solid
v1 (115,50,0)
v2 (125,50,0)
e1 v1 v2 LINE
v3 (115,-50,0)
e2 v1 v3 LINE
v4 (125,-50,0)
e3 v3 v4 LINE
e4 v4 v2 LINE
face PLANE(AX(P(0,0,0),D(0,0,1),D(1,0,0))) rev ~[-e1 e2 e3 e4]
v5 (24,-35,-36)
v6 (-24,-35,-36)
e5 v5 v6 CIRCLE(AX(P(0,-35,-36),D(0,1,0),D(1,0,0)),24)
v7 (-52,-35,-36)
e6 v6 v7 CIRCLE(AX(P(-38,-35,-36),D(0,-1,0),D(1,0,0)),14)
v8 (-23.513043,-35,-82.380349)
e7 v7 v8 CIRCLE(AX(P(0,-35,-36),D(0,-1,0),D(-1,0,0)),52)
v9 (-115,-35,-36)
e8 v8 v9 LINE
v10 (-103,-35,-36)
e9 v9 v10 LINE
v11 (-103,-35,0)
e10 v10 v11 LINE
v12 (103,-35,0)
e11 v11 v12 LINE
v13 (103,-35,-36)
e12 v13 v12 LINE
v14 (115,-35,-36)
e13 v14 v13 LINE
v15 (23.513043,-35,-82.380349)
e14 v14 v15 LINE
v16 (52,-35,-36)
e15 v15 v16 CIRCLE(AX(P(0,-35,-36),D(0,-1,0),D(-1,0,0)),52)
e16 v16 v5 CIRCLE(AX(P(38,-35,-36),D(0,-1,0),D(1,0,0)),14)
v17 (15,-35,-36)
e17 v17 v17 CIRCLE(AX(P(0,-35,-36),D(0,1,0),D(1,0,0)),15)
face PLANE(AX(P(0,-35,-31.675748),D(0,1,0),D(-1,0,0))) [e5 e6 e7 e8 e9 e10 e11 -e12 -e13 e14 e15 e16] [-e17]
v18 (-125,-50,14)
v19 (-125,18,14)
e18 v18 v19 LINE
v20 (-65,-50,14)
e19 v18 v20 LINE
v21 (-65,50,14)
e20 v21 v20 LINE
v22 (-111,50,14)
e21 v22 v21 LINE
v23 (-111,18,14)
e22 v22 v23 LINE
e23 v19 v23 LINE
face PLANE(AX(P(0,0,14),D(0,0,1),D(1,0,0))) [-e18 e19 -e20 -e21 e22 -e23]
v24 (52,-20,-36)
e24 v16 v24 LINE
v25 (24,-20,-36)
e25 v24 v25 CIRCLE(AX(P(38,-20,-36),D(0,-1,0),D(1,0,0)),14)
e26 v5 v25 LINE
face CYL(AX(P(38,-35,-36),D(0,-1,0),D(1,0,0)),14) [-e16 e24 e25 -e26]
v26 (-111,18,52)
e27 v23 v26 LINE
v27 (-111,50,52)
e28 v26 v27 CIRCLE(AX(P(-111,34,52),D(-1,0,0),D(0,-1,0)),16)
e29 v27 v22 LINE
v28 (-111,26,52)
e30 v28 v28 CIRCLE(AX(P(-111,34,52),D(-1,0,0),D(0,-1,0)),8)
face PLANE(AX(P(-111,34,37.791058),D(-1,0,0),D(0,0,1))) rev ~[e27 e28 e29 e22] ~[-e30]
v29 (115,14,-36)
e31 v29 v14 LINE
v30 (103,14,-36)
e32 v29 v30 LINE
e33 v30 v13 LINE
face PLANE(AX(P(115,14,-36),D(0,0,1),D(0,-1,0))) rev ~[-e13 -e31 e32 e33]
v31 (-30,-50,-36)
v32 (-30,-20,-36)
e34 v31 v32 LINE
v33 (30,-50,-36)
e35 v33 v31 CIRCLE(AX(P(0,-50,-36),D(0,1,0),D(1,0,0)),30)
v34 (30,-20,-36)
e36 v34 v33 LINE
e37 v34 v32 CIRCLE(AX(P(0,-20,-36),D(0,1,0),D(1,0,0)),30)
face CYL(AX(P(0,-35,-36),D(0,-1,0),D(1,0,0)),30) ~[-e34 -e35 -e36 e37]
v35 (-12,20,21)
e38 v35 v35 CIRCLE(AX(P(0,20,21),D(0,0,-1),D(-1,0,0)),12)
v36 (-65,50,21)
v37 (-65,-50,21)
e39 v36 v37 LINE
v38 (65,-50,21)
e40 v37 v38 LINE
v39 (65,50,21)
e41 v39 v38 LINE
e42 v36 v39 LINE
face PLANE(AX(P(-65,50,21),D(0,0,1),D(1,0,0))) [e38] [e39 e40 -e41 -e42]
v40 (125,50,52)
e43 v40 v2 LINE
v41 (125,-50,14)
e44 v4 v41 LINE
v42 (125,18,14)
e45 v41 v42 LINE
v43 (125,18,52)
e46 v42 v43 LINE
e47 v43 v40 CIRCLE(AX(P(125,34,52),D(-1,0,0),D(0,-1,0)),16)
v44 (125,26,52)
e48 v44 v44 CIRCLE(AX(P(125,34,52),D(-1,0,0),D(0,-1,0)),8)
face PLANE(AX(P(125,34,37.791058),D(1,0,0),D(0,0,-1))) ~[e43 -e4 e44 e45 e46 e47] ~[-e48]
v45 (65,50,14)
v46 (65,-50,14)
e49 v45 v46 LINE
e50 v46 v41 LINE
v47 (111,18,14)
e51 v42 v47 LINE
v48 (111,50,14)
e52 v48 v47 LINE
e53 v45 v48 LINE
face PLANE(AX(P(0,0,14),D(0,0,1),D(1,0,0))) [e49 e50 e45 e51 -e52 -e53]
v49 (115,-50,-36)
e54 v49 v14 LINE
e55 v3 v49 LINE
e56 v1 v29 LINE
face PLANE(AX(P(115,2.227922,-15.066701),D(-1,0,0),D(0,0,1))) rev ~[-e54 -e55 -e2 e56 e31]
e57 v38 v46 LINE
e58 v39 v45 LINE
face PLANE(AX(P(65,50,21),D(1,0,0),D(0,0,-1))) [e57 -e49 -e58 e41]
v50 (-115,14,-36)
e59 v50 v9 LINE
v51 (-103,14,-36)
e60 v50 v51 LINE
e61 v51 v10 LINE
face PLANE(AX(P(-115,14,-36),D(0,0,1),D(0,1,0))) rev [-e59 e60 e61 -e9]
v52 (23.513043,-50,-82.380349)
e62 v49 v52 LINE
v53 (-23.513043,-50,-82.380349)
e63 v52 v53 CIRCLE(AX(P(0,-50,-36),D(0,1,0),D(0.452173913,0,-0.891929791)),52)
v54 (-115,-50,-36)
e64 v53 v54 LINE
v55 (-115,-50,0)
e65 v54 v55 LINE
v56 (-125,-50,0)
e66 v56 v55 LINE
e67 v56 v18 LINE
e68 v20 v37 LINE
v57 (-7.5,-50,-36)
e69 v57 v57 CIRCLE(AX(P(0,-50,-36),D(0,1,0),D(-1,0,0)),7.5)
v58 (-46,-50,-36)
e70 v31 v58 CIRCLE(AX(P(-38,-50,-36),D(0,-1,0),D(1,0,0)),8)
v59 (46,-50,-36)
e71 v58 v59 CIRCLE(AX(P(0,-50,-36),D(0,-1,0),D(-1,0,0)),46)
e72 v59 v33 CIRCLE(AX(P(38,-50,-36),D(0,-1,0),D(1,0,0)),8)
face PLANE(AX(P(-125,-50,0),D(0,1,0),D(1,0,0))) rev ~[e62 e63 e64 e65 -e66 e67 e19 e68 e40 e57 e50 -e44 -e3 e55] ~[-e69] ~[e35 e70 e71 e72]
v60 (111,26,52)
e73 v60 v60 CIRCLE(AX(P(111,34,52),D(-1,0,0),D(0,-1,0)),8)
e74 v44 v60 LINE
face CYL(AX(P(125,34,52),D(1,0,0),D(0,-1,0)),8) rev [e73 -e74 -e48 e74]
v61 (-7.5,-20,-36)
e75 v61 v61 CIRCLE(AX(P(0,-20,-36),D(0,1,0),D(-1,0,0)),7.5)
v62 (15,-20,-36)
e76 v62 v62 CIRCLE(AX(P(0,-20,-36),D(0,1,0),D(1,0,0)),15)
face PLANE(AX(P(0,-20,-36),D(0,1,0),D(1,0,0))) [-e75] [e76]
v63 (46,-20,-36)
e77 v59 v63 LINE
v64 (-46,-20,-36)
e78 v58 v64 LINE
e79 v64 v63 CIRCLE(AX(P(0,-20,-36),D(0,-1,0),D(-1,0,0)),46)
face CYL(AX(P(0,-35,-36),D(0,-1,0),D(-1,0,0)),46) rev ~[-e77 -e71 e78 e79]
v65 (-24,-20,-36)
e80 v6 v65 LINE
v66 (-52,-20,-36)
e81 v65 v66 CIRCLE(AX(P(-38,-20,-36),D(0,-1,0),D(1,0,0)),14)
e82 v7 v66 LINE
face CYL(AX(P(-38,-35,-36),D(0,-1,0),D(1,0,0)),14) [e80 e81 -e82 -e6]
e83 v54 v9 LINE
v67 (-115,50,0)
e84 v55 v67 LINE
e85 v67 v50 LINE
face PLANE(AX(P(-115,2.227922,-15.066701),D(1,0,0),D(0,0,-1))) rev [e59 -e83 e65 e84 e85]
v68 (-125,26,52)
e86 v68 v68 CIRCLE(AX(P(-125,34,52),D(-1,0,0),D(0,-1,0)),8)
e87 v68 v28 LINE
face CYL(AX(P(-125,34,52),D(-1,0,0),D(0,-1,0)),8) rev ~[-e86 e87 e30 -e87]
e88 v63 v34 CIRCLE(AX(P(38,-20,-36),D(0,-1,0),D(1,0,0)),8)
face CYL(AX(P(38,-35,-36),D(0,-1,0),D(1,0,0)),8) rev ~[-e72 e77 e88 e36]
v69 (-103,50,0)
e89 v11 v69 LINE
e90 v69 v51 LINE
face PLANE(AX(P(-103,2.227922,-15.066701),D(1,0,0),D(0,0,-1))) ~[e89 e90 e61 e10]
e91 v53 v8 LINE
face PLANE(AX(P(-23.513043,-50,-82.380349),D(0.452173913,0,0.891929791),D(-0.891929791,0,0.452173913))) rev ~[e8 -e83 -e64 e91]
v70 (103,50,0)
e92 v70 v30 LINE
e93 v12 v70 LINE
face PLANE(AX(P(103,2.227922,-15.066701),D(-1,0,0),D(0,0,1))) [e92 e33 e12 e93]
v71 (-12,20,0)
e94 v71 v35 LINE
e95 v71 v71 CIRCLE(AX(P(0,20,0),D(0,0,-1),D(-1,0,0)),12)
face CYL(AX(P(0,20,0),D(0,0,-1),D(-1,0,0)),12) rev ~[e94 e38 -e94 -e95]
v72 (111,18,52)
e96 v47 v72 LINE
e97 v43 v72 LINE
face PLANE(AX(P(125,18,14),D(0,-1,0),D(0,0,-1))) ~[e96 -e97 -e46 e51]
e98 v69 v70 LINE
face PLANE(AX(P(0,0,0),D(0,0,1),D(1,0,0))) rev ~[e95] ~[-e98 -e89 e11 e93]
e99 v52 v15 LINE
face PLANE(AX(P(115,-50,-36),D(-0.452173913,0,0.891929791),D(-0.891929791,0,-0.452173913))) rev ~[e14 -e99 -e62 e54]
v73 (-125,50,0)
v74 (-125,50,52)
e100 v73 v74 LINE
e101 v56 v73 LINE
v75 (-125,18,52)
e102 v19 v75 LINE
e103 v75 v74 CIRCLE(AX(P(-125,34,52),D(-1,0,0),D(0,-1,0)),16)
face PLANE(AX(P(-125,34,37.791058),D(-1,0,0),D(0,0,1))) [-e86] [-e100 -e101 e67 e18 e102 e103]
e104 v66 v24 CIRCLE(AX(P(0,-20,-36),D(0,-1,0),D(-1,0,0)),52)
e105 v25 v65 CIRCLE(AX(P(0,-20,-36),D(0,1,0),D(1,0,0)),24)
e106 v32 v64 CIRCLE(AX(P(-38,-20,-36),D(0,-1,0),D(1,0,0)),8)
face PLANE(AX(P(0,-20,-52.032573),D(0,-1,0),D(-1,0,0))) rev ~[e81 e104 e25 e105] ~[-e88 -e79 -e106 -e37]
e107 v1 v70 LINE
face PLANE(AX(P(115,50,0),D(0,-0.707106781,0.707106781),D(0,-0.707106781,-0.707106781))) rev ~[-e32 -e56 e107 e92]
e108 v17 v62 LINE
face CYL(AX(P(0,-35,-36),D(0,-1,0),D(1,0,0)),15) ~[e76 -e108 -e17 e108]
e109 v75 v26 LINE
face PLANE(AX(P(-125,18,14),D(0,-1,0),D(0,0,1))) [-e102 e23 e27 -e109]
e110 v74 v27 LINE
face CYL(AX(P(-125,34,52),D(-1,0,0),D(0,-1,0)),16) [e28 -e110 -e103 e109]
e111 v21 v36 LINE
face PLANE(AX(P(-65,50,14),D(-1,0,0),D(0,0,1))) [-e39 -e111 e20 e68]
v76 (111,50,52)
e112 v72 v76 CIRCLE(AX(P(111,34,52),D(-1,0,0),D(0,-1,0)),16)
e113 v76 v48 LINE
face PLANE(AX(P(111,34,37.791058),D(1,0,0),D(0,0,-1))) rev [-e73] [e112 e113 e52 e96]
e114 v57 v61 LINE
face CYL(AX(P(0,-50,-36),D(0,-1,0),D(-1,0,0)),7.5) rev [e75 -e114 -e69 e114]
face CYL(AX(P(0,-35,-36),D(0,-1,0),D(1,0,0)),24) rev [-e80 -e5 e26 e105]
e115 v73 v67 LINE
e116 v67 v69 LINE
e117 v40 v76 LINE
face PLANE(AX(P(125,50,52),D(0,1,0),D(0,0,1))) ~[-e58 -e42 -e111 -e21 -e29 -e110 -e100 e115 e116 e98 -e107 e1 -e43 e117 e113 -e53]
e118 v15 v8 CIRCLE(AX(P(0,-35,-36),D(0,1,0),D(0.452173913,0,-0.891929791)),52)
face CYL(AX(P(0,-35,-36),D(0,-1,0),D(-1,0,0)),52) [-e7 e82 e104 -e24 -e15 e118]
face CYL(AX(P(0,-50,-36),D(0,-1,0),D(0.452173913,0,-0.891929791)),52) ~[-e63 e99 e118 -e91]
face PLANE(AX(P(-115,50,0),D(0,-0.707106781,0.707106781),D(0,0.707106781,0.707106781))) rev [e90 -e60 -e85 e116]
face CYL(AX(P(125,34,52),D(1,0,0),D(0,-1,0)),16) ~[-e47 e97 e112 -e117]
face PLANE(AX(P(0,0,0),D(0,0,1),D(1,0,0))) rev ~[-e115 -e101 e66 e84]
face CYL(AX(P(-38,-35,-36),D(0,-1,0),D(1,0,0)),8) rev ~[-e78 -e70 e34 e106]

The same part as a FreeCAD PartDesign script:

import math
import FreeCAD as App
import Part
import Sketcher
Q = App.Units.Quantity


def add_polygon(sketch, points):
    """Adds a closed chain of lines whose ends are joined by coincident constraints."""
    first, n = sketch.GeometryCount, len(points)
    for a, b in zip(points, points[1:] + points[:1]):
        sketch.addGeometry(Part.LineSegment(App.Vector(*a, 0), App.Vector(*b, 0)), False)
    for i in range(n):
        sketch.addConstraint(Sketcher.Constraint("Coincident", first + i, 2, first + (i + 1) % n, 1))

doc = App.newDocument("Part")
body = doc.addObject("PartDesign::Body", "Body")

sketch1 = body.newObject("Sketcher::SketchObject", "Sketch")
sketch1.AttachmentSupport = (doc.getObject("XY_Plane"), [""])
sketch1.MapMode = "FlatFace"
add_polygon(sketch1, [(-125, 50), (-125, -50), (125, -50), (125, 50)])
sketch1.addConstraint([
    Sketcher.Constraint("Vertical", 0),
    Sketcher.Constraint("Horizontal", 1),
    Sketcher.Constraint("Vertical", 2),
    Sketcher.Constraint("Horizontal", 3),
    Sketcher.Constraint("Symmetric", 0, 2, 2, 2, -1, 1),
    Sketcher.Constraint("DistanceX", 1, 1, 1, 2, Q("250 mm")),
    Sketcher.Constraint("DistanceY", 0, 2, 0, 1, Q("100 mm")),
])
pad1 = body.newObject("PartDesign::Pad", "Pad")
pad1.Profile = sketch1
pad1.Length = 14

sketch2 = body.newObject("Sketcher::SketchObject", "Sketch001")
sketch2.AttachmentSupport = (doc.getObject("XZ_Plane"), [""])
sketch2.MapMode = "FlatFace"
sketch2.AttachmentOffset = App.Placement(App.Vector(0, 0, -50), App.Rotation())
add_polygon(sketch2, [(-65, 14), (-65, 21), (65, 21), (65, 14)])
sketch2.addConstraint([
    Sketcher.Constraint("Vertical", 0),
    Sketcher.Constraint("Horizontal", 1),
    Sketcher.Constraint("Vertical", 2),
    Sketcher.Constraint("Horizontal", 3),
    Sketcher.Constraint("DistanceX", 1, 1, 1, 2, Q("130 mm")),
    Sketcher.Constraint("DistanceY", 0, 1, 0, 2, Q("7 mm")),
    Sketcher.Constraint("DistanceX", 0, 2, -1, 1, Q("65 mm")),
    Sketcher.Constraint("DistanceY", -1, 1, 0, 2, Q("21 mm")),
])
pad2 = body.newObject("PartDesign::Pad", "Pad001")
pad2.Profile = sketch2
pad2.Length = 100

sketch3 = body.newObject("Sketcher::SketchObject", "Sketch002")
sketch3.AttachmentSupport = (doc.getObject("YZ_Plane"), [""])
sketch3.MapMode = "FlatFace"
sketch3.AttachmentOffset = App.Placement(App.Vector(0, 0, -125), App.Rotation())
sketch3.addGeometry([
    Part.LineSegment(App.Vector(50, 14, 0), App.Vector(18, 14, 0)),
    Part.LineSegment(App.Vector(18, 14, 0), App.Vector(18, 52, 0)),
    Part.ArcOfCircle(Part.Circle(App.Vector(34, 52, 0), App.Vector(0, 0, 1), 16), math.radians(0), math.radians(180)),
    Part.LineSegment(App.Vector(50, 52, 0), App.Vector(50, 14, 0)),
    Part.Circle(App.Vector(34, 52, 0), App.Vector(0, 0, 1), 8),
], False)
sketch3.addConstraint([
    Sketcher.Constraint("Coincident", 0, 2, 1, 1),
    Sketcher.Constraint("Tangent", 1, 2, 2, 2),
    Sketcher.Constraint("Tangent", 2, 1, 3, 1),
    Sketcher.Constraint("Coincident", 3, 2, 0, 1),
    Sketcher.Constraint("Horizontal", 0),
    Sketcher.Constraint("Vertical", 1),
    Sketcher.Constraint("Vertical", 3),
    Sketcher.Constraint("Coincident", 4, 3, 2, 3),
    Sketcher.Constraint("Diameter", 4, Q("16 mm")),
    Sketcher.Constraint("Radius", 2, Q("16 mm")),
    Sketcher.Constraint("DistanceY", 1, 1, 1, 2, Q("38 mm")),
    Sketcher.Constraint("DistanceX", -1, 1, 2, 3, Q("34 mm")),
    Sketcher.Constraint("DistanceY", -1, 1, 2, 3, Q("52 mm")),
])
pad3 = body.newObject("PartDesign::Pad", "Pad002")
pad3.Profile = sketch3
pad3.Length = 14
doc.recompute()

mirrored = body.newObject("PartDesign::Mirrored", "Mirrored")
mirrored.Originals = [pad3]
mirrored.MirrorPlane = (doc.getObject("YZ_Plane"), [""])
body.Tip = mirrored

sketch4 = body.newObject("Sketcher::SketchObject", "Sketch003")
sketch4.AttachmentSupport = (doc.getObject("XY_Plane"), [""])
sketch4.MapMode = "FlatFace"
sketch4.addGeometry(Part.Circle(App.Vector(0, 20, 0), App.Vector(0, 0, 1), 12), False)
sketch4.addConstraint([
    Sketcher.Constraint("PointOnObject", 0, 3, -2),
    Sketcher.Constraint("Diameter", 0, Q("24 mm")),
    Sketcher.Constraint("DistanceY", -1, 1, 0, 3, Q("20 mm")),
])
pocket1 = body.newObject("PartDesign::Pocket", "Pocket")
pocket1.Profile = sketch4
pocket1.Length = 25
pocket1.Reversed = True
body2 = doc.addObject("PartDesign::Body", "Body001")

sketch5 = body2.newObject("Sketcher::SketchObject", "Sketch004")
sketch5.AttachmentSupport = (doc.getObject("XZ_Plane001"), [""])
sketch5.MapMode = "FlatFace"
sketch5.AttachmentOffset = App.Placement(App.Vector(0, 0, 50), App.Rotation())
sketch5.addGeometry([
    Part.LineSegment(App.Vector(115, -36, 0), App.Vector(115, 0, 0)),
    Part.LineSegment(App.Vector(115, 0, 0), App.Vector(-115, 0, 0)),
    Part.LineSegment(App.Vector(-115, 0, 0), App.Vector(-115, -36, 0)),
    Part.LineSegment(App.Vector(-115, -36, 0), App.Vector(-24, -82, 0)),
    Part.ArcOfCircle(Part.Circle(App.Vector(0, -36, 0), App.Vector(0, 0, 1), 52), math.radians(-117), math.radians(-63)),
    Part.LineSegment(App.Vector(24, -82, 0), App.Vector(115, -36, 0)),
], False)
sketch5.addConstraint([
    Sketcher.Constraint("Coincident", 0, 2, 1, 1),
    Sketcher.Constraint("Coincident", 1, 2, 2, 1),
    Sketcher.Constraint("Coincident", 2, 2, 3, 1),
    Sketcher.Constraint("Tangent", 3, 2, 4, 1),
    Sketcher.Constraint("Tangent", 4, 2, 5, 1),
    Sketcher.Constraint("Coincident", 5, 2, 0, 1),
    Sketcher.Constraint("Vertical", 0),
    Sketcher.Constraint("Horizontal", 1),
    Sketcher.Constraint("Vertical", 2),
    Sketcher.Constraint("Symmetric", 0, 2, 1, 2, -1, 1),
    Sketcher.Constraint("Symmetric", 3, 2, 4, 2, -2),
    Sketcher.Constraint("Horizontal", 4, 3, 2, 2),
    Sketcher.Constraint("Radius", 4, Q("52 mm")),
    Sketcher.Constraint("DistanceX", 1, 2, 1, 1, Q("230 mm")),
    Sketcher.Constraint("DistanceY", 0, 1, 0, 2, Q("36 mm")),
])
pad4 = body2.newObject("PartDesign::Pad", "Pad003")
pad4.Profile = sketch5
pad4.Length = 15
pad4.Reversed = True
doc.recompute()

boolean = body.newObject("PartDesign::Boolean", "Boolean")
boolean.Type = "Fuse"
boolean.addObjects([body2])

sketch6 = body.newObject("Sketcher::SketchObject", "Sketch005")
sketch6.AttachmentSupport = (doc.getObject("YZ_Plane"), [""])
sketch6.MapMode = "FlatFace"
sketch6.AttachmentOffset = App.Placement(App.Vector(0, 0, 115), App.Rotation())
add_polygon(sketch6, [(50, 0), (-35, 0), (-35, -36), (14, -36)])
sketch6.addConstraint([
    Sketcher.Constraint("Horizontal", 0),
    Sketcher.Constraint("Vertical", 1),
    Sketcher.Constraint("Horizontal", 2),
    Sketcher.Constraint("PointOnObject", 0, 2, -1),
    Sketcher.Constraint("DistanceX", 0, 2, 0, 1, Q("85 mm")),
    Sketcher.Constraint("DistanceX", 2, 1, 2, 2, Q("49 mm")),
    Sketcher.Constraint("DistanceY", 1, 2, 1, 1, Q("36 mm")),
    Sketcher.Constraint("DistanceX", 0, 2, -1, 1, Q("35 mm")),
])
pad5 = body.newObject("PartDesign::Pad", "Pad004")
pad5.Profile = sketch6
pad5.Length = 12
pad5.Reversed = True
doc.recompute()

mirrored2 = body.newObject("PartDesign::Mirrored", "Mirrored001")
mirrored2.Originals = [pad5]
mirrored2.MirrorPlane = (doc.getObject("YZ_Plane"), [""])
body.Tip = mirrored2

sketch7 = body.newObject("Sketcher::SketchObject", "Sketch006")
sketch7.AttachmentSupport = (doc.getObject("XZ_Plane"), [""])
sketch7.MapMode = "FlatFace"
sketch7.AttachmentOffset = App.Placement(App.Vector(0, 0, 35), App.Rotation())
sketch7.addGeometry([
    Part.Circle(App.Vector(0, -36, 0), App.Vector(0, 0, 1), 15),
    Part.Circle(App.Vector(0, -36, 0), App.Vector(0, 0, 1), 8),
    Part.ArcOfCircle(Part.Circle(App.Vector(0, -36, 0), App.Vector(0, 0, 1), 24), math.radians(180), math.radians(360)),
    Part.ArcOfCircle(Part.Circle(App.Vector(38, -36, 0), App.Vector(0, 0, 1), 14), math.radians(0), math.radians(180)),
    Part.ArcOfCircle(Part.Circle(App.Vector(0, -36, 0), App.Vector(0, 0, 1), 52), math.radians(180), math.radians(360)),
    Part.ArcOfCircle(Part.Circle(App.Vector(-38, -36, 0), App.Vector(0, 0, 1), 14), math.radians(0), math.radians(180)),
    Part.ArcOfCircle(Part.Circle(App.Vector(0, -36, 0), App.Vector(0, 0, 1), 30), math.radians(180), math.radians(360)),
    Part.ArcOfCircle(Part.Circle(App.Vector(-38, -36, 0), App.Vector(0, 0, 1), 8), math.radians(0), math.radians(180)),
    Part.ArcOfCircle(Part.Circle(App.Vector(0, -36, 0), App.Vector(0, 0, 1), 46), math.radians(180), math.radians(360)),
    Part.ArcOfCircle(Part.Circle(App.Vector(38, -36, 0), App.Vector(0, 0, 1), 8), math.radians(0), math.radians(180)),
], False)
sketch7.addConstraint([
    Sketcher.Constraint("Tangent", 2, 2, 3, 2),
    Sketcher.Constraint("Tangent", 3, 1, 4, 2),
    Sketcher.Constraint("Tangent", 4, 1, 5, 2),
    Sketcher.Constraint("Tangent", 5, 1, 2, 1),
    Sketcher.Constraint("Tangent", 6, 1, 7, 1),
    Sketcher.Constraint("Tangent", 7, 2, 8, 1),
    Sketcher.Constraint("Tangent", 8, 2, 9, 1),
    Sketcher.Constraint("Tangent", 9, 2, 6, 2),
    Sketcher.Constraint("Coincident", 1, 3, 0, 3),
    Sketcher.Constraint("Coincident", 2, 3, 0, 3),
    Sketcher.Constraint("Coincident", 4, 3, 0, 3),
    Sketcher.Constraint("Coincident", 6, 3, 0, 3),
    Sketcher.Constraint("Coincident", 7, 3, 5, 3),
    Sketcher.Constraint("Coincident", 8, 3, 0, 3),
    Sketcher.Constraint("Symmetric", 3, 3, 5, 3, -2),
    Sketcher.Constraint("Horizontal", 2, 3, 3, 3),
    Sketcher.Constraint("Horizontal", 8, 3, 9, 3),
    Sketcher.Constraint("Diameter", 0, Q("30 mm")),
    Sketcher.Constraint("Diameter", 1, Q("15 mm")),
    Sketcher.Constraint("Radius", 2, Q("24 mm")),
    Sketcher.Constraint("Radius", 3, Q("14 mm")),
    Sketcher.Constraint("Radius", 6, Q("30 mm")),
    Sketcher.Constraint("DistanceY", 0, 3, -1, 1, Q("36 mm")),
])
pad6 = body.newObject("PartDesign::Pad", "Pad005")
pad6.Profile = sketch7
pad6.Length = 15
pad6.Reversed = True

sketch8 = body.newObject("Sketcher::SketchObject", "Sketch007")
sketch8.AttachmentSupport = (doc.getObject("XZ_Plane"), [""])
sketch8.MapMode = "FlatFace"
sketch8.AttachmentOffset = App.Placement(App.Vector(0, 0, 50), App.Rotation())
sketch8.addGeometry([
    Part.Circle(App.Vector(0, -36, 0), App.Vector(0, 0, 1), 8),
    Part.ArcOfCircle(Part.Circle(App.Vector(0, -36, 0), App.Vector(0, 0, 1), 30), math.radians(180), math.radians(360)),
    Part.ArcOfCircle(Part.Circle(App.Vector(38, -36, 0), App.Vector(0, 0, 1), 8), math.radians(0), math.radians(180)),
    Part.ArcOfCircle(Part.Circle(App.Vector(0, -36, 0), App.Vector(0, 0, 1), 46), math.radians(180), math.radians(360)),
    Part.ArcOfCircle(Part.Circle(App.Vector(-38, -36, 0), App.Vector(0, 0, 1), 8), math.radians(0), math.radians(180)),
], False)
sketch8.addConstraint([
    Sketcher.Constraint("Tangent", 1, 2, 2, 2),
    Sketcher.Constraint("Tangent", 2, 1, 3, 2),
    Sketcher.Constraint("Tangent", 3, 1, 4, 2),
    Sketcher.Constraint("Tangent", 4, 1, 1, 1),
    Sketcher.Constraint("Coincident", 1, 3, 0, 3),
    Sketcher.Constraint("Coincident", 3, 3, 0, 3),
    Sketcher.Constraint("Symmetric", 2, 3, 4, 3, -2),
    Sketcher.Constraint("Horizontal", 1, 3, 2, 3),
    Sketcher.Constraint("Diameter", 0, Q("15 mm")),
    Sketcher.Constraint("Radius", 1, Q("30 mm")),
    Sketcher.Constraint("Radius", 2, Q("8 mm")),
    Sketcher.Constraint("DistanceY", 0, 3, -1, 1, Q("36 mm")),
])
pocket2 = body.newObject("PartDesign::Pocket", "Pocket001")
pocket2.Profile = sketch8
pocket2.Length = 15

doc.recompute()
